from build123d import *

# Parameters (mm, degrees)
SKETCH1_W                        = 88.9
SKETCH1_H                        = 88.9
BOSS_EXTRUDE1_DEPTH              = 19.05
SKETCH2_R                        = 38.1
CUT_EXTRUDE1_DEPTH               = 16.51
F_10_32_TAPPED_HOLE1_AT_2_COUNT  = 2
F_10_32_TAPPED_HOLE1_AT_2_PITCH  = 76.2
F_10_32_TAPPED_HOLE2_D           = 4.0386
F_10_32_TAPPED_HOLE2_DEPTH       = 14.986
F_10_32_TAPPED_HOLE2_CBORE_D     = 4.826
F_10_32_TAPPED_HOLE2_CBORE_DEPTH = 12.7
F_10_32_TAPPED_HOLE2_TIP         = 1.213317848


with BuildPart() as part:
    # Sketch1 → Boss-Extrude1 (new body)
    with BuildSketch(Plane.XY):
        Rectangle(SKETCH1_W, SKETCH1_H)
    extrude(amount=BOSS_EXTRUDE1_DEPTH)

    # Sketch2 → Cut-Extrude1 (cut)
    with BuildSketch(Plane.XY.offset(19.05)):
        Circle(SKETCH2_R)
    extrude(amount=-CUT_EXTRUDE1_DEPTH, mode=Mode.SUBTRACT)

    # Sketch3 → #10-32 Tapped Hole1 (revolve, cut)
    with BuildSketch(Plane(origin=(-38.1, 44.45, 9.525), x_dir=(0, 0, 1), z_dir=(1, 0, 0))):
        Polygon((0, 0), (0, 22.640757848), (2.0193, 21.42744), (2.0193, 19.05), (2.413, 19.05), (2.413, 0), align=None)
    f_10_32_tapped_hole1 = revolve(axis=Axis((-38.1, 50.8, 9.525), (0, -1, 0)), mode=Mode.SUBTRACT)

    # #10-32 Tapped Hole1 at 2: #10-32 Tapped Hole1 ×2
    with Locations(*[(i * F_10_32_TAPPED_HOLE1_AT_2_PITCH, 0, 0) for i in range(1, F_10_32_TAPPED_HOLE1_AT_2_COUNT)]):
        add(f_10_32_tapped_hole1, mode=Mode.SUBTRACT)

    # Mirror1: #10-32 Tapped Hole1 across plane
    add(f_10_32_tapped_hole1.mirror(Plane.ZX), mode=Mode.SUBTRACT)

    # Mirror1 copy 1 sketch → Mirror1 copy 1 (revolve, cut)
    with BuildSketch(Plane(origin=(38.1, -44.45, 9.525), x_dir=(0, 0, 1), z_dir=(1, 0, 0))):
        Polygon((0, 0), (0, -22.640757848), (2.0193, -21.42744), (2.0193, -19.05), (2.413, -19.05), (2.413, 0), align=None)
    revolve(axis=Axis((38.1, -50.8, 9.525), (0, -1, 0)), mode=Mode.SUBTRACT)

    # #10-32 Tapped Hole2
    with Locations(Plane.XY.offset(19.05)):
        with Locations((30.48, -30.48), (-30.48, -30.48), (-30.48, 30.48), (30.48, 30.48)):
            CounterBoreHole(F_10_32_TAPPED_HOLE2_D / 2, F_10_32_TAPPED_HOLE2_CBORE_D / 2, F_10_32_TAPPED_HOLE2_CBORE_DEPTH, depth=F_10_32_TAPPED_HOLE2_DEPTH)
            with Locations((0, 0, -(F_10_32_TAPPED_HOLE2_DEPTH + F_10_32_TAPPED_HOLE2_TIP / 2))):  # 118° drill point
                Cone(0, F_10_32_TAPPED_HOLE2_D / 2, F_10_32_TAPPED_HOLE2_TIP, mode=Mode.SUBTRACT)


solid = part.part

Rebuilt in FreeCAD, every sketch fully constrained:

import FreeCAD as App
import Part
import Sketcher

V = App.Vector
Q = App.Units.Quantity


def add_polygon(sketch, points):
    """Adds a closed chain of lines whose ends are joined by coincident constraints."""
    first, n = sketch.GeometryCount, len(points)
    for a, b in zip(points, points[1:] + points[:1]):
        sketch.addGeometry(Part.LineSegment(App.Vector(*a, 0), App.Vector(*b, 0)), False)
    for i in range(n):
        sketch.addConstraint(Sketcher.Constraint("Coincident", first + i, 2, first + (i + 1) % n, 1))

doc = App.newDocument("Part")
body = doc.addObject("PartDesign::Body", "Body")

# Sketch on XY plane
sketch1 = body.newObject("Sketcher::SketchObject", "Sketch")
sketch1.AttachmentSupport = (doc.getObject("XY_Plane"), [""])
sketch1.MapMode = "FlatFace"
add_polygon(sketch1, [(-44, 44), (-44, -44), (44, -44), (44, 44)])  # lines 0-3
sketch1.addConstraint([
    Sketcher.Constraint("Vertical", 0),
    Sketcher.Constraint("Horizontal", 1),
    Sketcher.Constraint("Vertical", 2),
    Sketcher.Constraint("Horizontal", 3),
    Sketcher.Constraint("Symmetric", 0, 2, 2, 2, -1, 1),
    Sketcher.Constraint("Equal", 3, 0),
    Sketcher.Constraint("DistanceX", 1, 1, 1, 2, Q("3.5 in")),
])
pad1 = body.newObject("PartDesign::Pad", "Pad")
pad1.Profile = sketch1
pad1.Length = Q("0.75 in")

# Sketch on XY plane
sketch2 = body.newObject("Sketcher::SketchObject", "Sketch001")
sketch2.AttachmentSupport = (doc.getObject("XY_Plane"), [""])
sketch2.MapMode = "FlatFace"
sketch2.AttachmentOffset = App.Placement(V(0, 0, 0.75 * 25.4), App.Rotation())
sketch2.addGeometry(Part.Circle(V(0, 0, 0), V(0, 0, 1), 38), False)
sketch2.addConstraint([
    Sketcher.Constraint("Coincident", 0, 3, -1, 1),
    Sketcher.Constraint("Diameter", 0, Q("3 in")),
])
pocket1 = body.newObject("PartDesign::Pocket", "Pocket")
pocket1.Profile = sketch2
pocket1.Length = Q("0.65 in")

# Sketch on YZ plane
sketch3 = body.newObject("Sketcher::SketchObject", "Sketch002")
sketch3.AttachmentSupport = (doc.getObject("YZ_Plane"), [""])
sketch3.MapMode = "FlatFace"
sketch3.AttachmentOffset = App.Placement(V(0, 0, -1.5 * 25.4), App.Rotation())
add_polygon(sketch3, [(21.81, 9.53), (44.45, 9.53), (44.45, 11.94), (25.4, 11.94), (25.4, 11.54), (23.02, 11.54)])  # lines 0-5
sketch3.addGeometry(Part.LineSegment(V(44.45, 9.53, 0), V(21.81, 9.53, 0)), True)  # axis
sketch3.addConstraint([
    Sketcher.Constraint("Horizontal", 0),
    Sketcher.Constraint("Vertical", 1),
    Sketcher.Constraint("Horizontal", 2),
    Sketcher.Constraint("Vertical", 3),
    Sketcher.Constraint("Horizontal", 4),
    Sketcher.Constraint("Horizontal", 6),
    Sketcher.Constraint("Coincident", 6, 1, 0, 2),
    Sketcher.Constraint("Equal", 0, 6),
    Sketcher.Constraint("DistanceX", -1, 1, 2, 2, Q("1 in")),
    Sketcher.Constraint("Angle", 5, Q("-121 deg")),
    Sketcher.Constraint("DistanceX", 2, 2, 2, 1, Q("0.75 in")),
    Sketcher.Constraint("DistanceY", 1, 1, 1, 2, Q("0.095 in")),
    Sketcher.Constraint("DistanceY", -1, 1, 1, 2, Q("0.47 in")),
    Sketcher.Constraint("DistanceX", 4, 2, 4, 1, Q("0.0936 in")),
    Sketcher.Constraint("DistanceY", 3, 2, 3, 1, Q("0.0155 in")),
])
groove = body.newObject("PartDesign::Groove", "Groove")
groove.Profile = sketch3
groove.ReferenceAxis = (sketch3, ["Axis0"])
groove.Angle = 360
doc.recompute()

linearpattern = body.newObject("PartDesign::LinearPattern", "LinearPattern")
linearpattern.Originals = [groove]
linearpattern.Direction = (doc.getObject("X_Axis"), [""])
linearpattern.Mode = "offset"
linearpattern.Offset = Q("3 in")
linearpattern.Occurrences = 2
body.Tip = linearpattern
doc.recompute()

mirrored = body.newObject("PartDesign::Mirrored", "Mirrored")
mirrored.Originals = [groove]
mirrored.MirrorPlane = (doc.getObject("XZ_Plane"), [""])
body.Tip = mirrored

# Sketch on YZ plane
sketch4 = body.newObject("Sketcher::SketchObject", "Sketch003")
sketch4.AttachmentSupport = (doc.getObject("YZ_Plane"), [""])
sketch4.MapMode = "FlatFace"
sketch4.AttachmentOffset = App.Placement(V(0, 0, 1.5 * 25.4), App.Rotation())
add_polygon(sketch4, [(-44.45, 9.53), (-21.81, 9.53), (-23.02, 11.54), (-25.4, 11.54), (-25.4, 11.94), (-44.45, 11.94)])  # lines 0-5
sketch4.addGeometry(Part.LineSegment(V(-21.81, 9.53, 0), V(-44.45, 9.53, 0)), True)  # axis
sketch4.addConstraint([
    Sketcher.Constraint("Horizontal", 0),
    Sketcher.Constraint("Horizontal", 2),
    Sketcher.Constraint("Vertical", 3),
    Sketcher.Constraint("Horizontal", 4),
    Sketcher.Constraint("Vertical", 5),
    Sketcher.Constraint("Horizontal", 6),
    Sketcher.Constraint("Coincident", 6, 1, 0, 2),
    Sketcher.Constraint("Vertical", 4, 2, 6, 2),
    Sketcher.Constraint("DistanceX", 2, 2, -1, 1, Q("1 in")),
    Sketcher.Constraint("Angle", 1, Q("121 deg")),
    Sketcher.Constraint("DistanceX", 4, 2, 4, 1, Q("0.75 in")),
    Sketcher.Constraint("DistanceY", 5, 2, 5, 1, Q("0.095 in")),
    Sketcher.Constraint("DistanceY", -1, 1, 3, 2, Q("0.47 in")),
    Sketcher.Constraint("DistanceX", 2, 2, 2, 1, Q("0.0936 in")),
    Sketcher.Constraint("DistanceY", 3, 1, 3, 2, Q("0.0155 in")),
])
groove2 = body.newObject("PartDesign::Groove", "Groove001")
groove2.Profile = sketch4
groove2.ReferenceAxis = (sketch4, ["Axis0"])
groove2.Angle = 360

# Sketch on XY plane
sketch5 = body.newObject("Sketcher::SketchObject", "Sketch004")
sketch5.AttachmentSupport = (doc.getObject("XY_Plane"), [""])
sketch5.MapMode = "FlatFace"
sketch5.AttachmentOffset = App.Placement(V(0, 0, 0.75 * 25.4), App.Rotation())
sketch5.addGeometry([
    Part.Circle(V(30.5, -30.5, 0), V(0, 0, 1), 2),
    Part.Circle(V(-30.5, -30.5, 0), V(0, 0, 1), 2),
    Part.Circle(V(-30.5, 30.5, 0), V(0, 0, 1), 2),
    Part.Circle(V(30.5, 30.5, 0), V(0, 0, 1), 2),
], False)
sketch5.addConstraint([
    Sketcher.Constraint("Equal", 0, 1),
    Sketcher.Constraint("Equal", 1, 2),
    Sketcher.Constraint("Equal", 2, 3),
    Sketcher.Constraint("Symmetric", 0, 3, 2, 3, -1, 1),
    Sketcher.Constraint("Symmetric", 1, 3, 3, 3, -1, 1),
    Sketcher.Constraint("Symmetric", 0, 3, 1, 3, -2),
    Sketcher.Constraint("Diameter", 0, Q("0.159 in")),
    Sketcher.Constraint("DistanceX", -1, 1, 0, 3, Q("1.2 in")),
    Sketcher.Constraint("DistanceY", 0, 3, -1, 1, Q("1.2 in")),
])
doc.recompute()
hole = body.newObject("PartDesign::Hole", "Hole")
hole.Profile = sketch5
hole.ThreadType = "None"
hole.Diameter = Q("0.159 in")
hole.DepthType = "Dimension"
hole.Depth = Q("0.59 in")
hole.DrillPoint = "Angled"
hole.DrillPointAngle = 118
hole.HoleCutType = "Counterbore"
hole.HoleCutDiameter = Q("0.19 in")
hole.HoleCutDepth = Q("0.5 in")

doc.recompute()
